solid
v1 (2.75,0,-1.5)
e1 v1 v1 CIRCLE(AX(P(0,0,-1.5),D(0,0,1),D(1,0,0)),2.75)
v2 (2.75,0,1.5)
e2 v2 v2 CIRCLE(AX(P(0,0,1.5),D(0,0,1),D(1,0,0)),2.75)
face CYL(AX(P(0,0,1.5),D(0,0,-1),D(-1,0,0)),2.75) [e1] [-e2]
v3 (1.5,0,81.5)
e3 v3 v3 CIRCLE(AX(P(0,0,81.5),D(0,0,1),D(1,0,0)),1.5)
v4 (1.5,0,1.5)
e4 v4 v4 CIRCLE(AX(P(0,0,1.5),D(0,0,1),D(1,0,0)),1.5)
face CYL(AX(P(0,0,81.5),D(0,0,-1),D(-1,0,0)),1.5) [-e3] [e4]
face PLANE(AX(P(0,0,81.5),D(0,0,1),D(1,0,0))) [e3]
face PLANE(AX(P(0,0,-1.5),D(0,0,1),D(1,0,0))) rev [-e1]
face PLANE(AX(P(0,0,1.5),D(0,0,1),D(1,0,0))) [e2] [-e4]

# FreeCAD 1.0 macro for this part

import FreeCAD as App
import Part
import Sketcher

V = App.Vector
Q = App.Units.Quantity

doc = App.newDocument("Part")
body = doc.addObject("PartDesign::Body", "Body")

# Sketch on XY plane
sketch1 = body.newObject("Sketcher::SketchObject", "Sketch")
sketch1.AttachmentSupport = (doc.getObject("XY_Plane"), [""])
sketch1.MapMode = "FlatFace"
sketch1.addGeometry(Part.Circle(V(0, 0, 0), V(0, 0, 1), 2.8), False)
sketch1.addConstraint([
    Sketcher.Constraint("Coincident", 0, 3, -1, 1),
    Sketcher.Constraint("Diameter", 0, Q("5.5 mm")),
])
pad1 = body.newObject("PartDesign::Pad", "Pad")
pad1.Profile = sketch1
pad1.Length = 3
pad1.Midplane = True

# Sketch on XY plane
sketch2 = body.newObject("Sketcher::SketchObject", "Sketch001")
sketch2.AttachmentSupport = (doc.getObject("XY_Plane"), [""])
sketch2.MapMode = "FlatFace"
sketch2.AttachmentOffset = App.Placement(V(0, 0, 1.5), App.Rotation())
sketch2.addGeometry(Part.Circle(V(0, 0, 0), V(0, 0, 1), 1.5), False)
sketch2.addConstraint([
    Sketcher.Constraint("Coincident", 0, 3, -1, 1),
    Sketcher.Constraint("Diameter", 0, Q("3 mm")),
])
pad2 = body.newObject("PartDesign::Pad", "Pad001")
pad2.Profile = sketch2
pad2.Length = 80

doc.recompute()
